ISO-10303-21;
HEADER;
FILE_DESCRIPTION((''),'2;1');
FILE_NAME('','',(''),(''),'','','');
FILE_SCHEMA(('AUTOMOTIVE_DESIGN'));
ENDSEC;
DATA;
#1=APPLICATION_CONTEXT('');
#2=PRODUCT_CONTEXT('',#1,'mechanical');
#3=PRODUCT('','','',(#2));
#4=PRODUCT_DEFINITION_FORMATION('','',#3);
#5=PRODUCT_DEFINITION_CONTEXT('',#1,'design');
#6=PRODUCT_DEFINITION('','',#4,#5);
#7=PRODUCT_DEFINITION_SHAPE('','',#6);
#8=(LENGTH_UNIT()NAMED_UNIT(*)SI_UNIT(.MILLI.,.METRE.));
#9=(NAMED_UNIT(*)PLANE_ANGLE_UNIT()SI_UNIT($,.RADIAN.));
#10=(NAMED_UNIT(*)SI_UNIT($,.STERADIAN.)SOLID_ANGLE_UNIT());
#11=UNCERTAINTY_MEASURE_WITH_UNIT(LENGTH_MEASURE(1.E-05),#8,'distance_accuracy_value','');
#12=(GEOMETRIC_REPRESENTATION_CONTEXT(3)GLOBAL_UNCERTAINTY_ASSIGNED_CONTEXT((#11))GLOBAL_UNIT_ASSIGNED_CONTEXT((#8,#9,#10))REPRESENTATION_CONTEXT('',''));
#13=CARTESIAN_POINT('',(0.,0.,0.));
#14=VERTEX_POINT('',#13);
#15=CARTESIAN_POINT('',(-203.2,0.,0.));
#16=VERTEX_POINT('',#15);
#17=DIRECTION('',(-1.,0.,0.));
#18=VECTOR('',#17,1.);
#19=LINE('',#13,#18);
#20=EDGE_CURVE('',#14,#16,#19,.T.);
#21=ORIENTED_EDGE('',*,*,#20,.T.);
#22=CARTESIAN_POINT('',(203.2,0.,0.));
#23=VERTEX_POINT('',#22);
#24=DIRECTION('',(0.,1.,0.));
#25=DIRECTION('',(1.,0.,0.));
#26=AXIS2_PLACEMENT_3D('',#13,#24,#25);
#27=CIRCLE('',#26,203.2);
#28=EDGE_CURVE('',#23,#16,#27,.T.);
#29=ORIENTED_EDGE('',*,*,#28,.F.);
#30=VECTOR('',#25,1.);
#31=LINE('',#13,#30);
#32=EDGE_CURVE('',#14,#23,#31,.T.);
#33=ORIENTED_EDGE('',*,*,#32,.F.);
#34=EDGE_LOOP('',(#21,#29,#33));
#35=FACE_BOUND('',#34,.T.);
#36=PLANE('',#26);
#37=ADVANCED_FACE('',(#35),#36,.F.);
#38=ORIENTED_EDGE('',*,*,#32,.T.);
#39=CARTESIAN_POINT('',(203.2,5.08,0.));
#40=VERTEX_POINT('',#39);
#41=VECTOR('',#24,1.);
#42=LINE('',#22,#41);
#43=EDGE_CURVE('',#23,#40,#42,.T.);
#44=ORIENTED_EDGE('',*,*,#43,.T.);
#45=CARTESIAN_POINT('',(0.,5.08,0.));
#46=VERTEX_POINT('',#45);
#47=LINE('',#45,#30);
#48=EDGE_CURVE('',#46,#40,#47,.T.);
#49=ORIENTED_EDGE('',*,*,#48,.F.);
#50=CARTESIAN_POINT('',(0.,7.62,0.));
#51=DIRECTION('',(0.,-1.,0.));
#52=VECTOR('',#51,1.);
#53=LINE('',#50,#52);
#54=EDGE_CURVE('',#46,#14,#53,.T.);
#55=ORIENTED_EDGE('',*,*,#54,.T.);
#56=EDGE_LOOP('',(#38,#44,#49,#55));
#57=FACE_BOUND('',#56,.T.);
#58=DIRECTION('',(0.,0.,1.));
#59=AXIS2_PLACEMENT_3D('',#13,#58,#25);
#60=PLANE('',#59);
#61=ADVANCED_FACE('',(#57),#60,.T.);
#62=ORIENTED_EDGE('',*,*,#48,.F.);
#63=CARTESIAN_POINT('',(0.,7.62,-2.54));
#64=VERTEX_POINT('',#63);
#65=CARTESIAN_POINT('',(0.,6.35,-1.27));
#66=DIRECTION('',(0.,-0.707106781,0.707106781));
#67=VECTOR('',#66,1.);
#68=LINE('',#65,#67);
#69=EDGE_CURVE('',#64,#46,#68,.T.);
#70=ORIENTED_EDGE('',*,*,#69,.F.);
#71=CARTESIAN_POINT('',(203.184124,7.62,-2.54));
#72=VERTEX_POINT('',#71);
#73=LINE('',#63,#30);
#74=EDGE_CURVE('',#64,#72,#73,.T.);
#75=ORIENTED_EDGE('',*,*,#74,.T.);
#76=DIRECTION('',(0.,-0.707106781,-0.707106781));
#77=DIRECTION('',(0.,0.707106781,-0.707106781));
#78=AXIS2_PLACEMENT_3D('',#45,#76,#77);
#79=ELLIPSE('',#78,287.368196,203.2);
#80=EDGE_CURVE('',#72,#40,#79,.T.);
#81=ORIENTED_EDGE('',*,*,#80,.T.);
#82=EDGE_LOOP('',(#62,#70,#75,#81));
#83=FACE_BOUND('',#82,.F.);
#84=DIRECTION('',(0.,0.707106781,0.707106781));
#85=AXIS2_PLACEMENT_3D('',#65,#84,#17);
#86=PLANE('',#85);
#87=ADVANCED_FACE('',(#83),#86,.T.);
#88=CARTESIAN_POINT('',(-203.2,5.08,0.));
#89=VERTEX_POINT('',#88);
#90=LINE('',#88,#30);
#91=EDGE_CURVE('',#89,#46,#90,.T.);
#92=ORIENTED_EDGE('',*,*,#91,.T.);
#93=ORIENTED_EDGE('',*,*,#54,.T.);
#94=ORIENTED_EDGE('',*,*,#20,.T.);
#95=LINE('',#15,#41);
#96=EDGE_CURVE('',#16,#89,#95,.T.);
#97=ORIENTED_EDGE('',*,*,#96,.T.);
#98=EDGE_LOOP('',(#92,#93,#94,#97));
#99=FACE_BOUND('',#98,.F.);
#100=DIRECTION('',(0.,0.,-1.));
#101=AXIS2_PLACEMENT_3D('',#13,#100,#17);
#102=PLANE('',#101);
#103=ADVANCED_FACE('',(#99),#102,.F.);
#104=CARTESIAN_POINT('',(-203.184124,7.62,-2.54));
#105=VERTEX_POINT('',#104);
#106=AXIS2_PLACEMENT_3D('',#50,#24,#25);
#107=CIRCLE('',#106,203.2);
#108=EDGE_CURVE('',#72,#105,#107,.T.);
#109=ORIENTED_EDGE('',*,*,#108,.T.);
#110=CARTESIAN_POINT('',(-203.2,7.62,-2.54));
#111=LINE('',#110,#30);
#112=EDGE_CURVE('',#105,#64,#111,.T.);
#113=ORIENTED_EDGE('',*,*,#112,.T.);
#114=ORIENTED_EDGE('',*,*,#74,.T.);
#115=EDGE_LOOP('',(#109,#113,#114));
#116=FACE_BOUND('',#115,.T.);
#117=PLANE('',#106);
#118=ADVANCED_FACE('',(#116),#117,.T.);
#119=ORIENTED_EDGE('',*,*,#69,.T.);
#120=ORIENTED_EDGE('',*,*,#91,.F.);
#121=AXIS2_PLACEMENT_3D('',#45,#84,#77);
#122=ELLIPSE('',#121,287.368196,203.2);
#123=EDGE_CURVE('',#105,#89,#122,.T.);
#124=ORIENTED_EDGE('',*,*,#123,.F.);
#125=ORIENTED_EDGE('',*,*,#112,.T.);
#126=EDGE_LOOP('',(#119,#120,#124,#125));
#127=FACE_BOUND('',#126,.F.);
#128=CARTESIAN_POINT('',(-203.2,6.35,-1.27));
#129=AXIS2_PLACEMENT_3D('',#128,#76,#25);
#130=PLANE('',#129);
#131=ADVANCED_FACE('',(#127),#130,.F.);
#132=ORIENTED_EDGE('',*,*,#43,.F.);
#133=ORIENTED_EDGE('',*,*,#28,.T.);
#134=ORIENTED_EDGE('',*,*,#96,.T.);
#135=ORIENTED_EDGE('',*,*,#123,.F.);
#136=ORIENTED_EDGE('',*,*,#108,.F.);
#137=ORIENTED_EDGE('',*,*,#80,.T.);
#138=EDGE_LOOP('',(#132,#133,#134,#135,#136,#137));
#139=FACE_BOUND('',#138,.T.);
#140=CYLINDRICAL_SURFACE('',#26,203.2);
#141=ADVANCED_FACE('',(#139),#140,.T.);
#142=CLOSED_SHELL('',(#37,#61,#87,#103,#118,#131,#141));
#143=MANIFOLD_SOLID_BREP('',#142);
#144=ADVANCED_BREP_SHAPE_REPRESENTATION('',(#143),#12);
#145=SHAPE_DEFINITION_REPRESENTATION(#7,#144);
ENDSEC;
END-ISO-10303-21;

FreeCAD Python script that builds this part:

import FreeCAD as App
import Part
import Sketcher
from FreeCAD import Vector
Q = App.Units.Quantity


def edges_at(feature, points):
    """Names of the edges that pass closest to the given points."""
    edges = feature.Shape.Edges
    near = lambda p: min(range(len(edges)), key=lambda i: edges[i].distToShape(Part.Vertex(*p))[0])
    return sorted({f"Edge{near(p) + 1}" for p in points})


def add_polygon(sketch, points):
    """Adds a closed chain of lines whose ends are joined by coincident constraints."""
    first, n = sketch.GeometryCount, len(points)
    for a, b in zip(points, points[1:] + points[:1]):
        sketch.addGeometry(Part.LineSegment(App.Vector(*a, 0), App.Vector(*b, 0)), False)
    for i in range(n):
        sketch.addConstraint(Sketcher.Constraint("Coincident", first + i, 2, first + (i + 1) % n, 1))

doc = App.newDocument("Part")
body = doc.addObject("PartDesign::Body", "Body")

sketch1 = doc.addObject("Sketcher::SketchObject", "Sketch")
body.addObject(sketch1)
sketch1.AttachmentSupport = (doc.XY_Plane, [""])
sketch1.MapMode = "FlatFace"
add_polygon(sketch1, [(0, 7.62), (0, 0), (203.2, 0), (203.2, 7.62)])
sketch1.addConstraint(Sketcher.Constraint("Vertical", 0))
sketch1.addConstraint(Sketcher.Constraint("Horizontal", 1))
sketch1.addConstraint(Sketcher.Constraint("Vertical", 2))
sketch1.addConstraint(Sketcher.Constraint("Horizontal", 3))
sketch1.addConstraint(Sketcher.Constraint("Coincident", 0, 2, -1, 1))
sketch1.addConstraint(Sketcher.Constraint("DistanceX", 1, 1, 1, 2, Q("8 in")))
sketch1.addConstraint(Sketcher.Constraint("DistanceY", 0, 2, 0, 1, Q("0.3 in")))
revolution = doc.addObject("PartDesign::Revolution", "Revolution")
body.addObject(revolution)
revolution.Profile = sketch1
revolution.ReferenceAxis = (sketch1, ["V_Axis"])
revolution.Angle = 180
doc.recompute()

chamfer = doc.addObject("PartDesign::Chamfer", "Chamfer")
body.addObject(chamfer)
chamfer.Base = (revolution, edges_at(revolution, [(-101.6, 7.62, 0)]))
chamfer.Size = Q("0.1 in")

doc.recompute()
